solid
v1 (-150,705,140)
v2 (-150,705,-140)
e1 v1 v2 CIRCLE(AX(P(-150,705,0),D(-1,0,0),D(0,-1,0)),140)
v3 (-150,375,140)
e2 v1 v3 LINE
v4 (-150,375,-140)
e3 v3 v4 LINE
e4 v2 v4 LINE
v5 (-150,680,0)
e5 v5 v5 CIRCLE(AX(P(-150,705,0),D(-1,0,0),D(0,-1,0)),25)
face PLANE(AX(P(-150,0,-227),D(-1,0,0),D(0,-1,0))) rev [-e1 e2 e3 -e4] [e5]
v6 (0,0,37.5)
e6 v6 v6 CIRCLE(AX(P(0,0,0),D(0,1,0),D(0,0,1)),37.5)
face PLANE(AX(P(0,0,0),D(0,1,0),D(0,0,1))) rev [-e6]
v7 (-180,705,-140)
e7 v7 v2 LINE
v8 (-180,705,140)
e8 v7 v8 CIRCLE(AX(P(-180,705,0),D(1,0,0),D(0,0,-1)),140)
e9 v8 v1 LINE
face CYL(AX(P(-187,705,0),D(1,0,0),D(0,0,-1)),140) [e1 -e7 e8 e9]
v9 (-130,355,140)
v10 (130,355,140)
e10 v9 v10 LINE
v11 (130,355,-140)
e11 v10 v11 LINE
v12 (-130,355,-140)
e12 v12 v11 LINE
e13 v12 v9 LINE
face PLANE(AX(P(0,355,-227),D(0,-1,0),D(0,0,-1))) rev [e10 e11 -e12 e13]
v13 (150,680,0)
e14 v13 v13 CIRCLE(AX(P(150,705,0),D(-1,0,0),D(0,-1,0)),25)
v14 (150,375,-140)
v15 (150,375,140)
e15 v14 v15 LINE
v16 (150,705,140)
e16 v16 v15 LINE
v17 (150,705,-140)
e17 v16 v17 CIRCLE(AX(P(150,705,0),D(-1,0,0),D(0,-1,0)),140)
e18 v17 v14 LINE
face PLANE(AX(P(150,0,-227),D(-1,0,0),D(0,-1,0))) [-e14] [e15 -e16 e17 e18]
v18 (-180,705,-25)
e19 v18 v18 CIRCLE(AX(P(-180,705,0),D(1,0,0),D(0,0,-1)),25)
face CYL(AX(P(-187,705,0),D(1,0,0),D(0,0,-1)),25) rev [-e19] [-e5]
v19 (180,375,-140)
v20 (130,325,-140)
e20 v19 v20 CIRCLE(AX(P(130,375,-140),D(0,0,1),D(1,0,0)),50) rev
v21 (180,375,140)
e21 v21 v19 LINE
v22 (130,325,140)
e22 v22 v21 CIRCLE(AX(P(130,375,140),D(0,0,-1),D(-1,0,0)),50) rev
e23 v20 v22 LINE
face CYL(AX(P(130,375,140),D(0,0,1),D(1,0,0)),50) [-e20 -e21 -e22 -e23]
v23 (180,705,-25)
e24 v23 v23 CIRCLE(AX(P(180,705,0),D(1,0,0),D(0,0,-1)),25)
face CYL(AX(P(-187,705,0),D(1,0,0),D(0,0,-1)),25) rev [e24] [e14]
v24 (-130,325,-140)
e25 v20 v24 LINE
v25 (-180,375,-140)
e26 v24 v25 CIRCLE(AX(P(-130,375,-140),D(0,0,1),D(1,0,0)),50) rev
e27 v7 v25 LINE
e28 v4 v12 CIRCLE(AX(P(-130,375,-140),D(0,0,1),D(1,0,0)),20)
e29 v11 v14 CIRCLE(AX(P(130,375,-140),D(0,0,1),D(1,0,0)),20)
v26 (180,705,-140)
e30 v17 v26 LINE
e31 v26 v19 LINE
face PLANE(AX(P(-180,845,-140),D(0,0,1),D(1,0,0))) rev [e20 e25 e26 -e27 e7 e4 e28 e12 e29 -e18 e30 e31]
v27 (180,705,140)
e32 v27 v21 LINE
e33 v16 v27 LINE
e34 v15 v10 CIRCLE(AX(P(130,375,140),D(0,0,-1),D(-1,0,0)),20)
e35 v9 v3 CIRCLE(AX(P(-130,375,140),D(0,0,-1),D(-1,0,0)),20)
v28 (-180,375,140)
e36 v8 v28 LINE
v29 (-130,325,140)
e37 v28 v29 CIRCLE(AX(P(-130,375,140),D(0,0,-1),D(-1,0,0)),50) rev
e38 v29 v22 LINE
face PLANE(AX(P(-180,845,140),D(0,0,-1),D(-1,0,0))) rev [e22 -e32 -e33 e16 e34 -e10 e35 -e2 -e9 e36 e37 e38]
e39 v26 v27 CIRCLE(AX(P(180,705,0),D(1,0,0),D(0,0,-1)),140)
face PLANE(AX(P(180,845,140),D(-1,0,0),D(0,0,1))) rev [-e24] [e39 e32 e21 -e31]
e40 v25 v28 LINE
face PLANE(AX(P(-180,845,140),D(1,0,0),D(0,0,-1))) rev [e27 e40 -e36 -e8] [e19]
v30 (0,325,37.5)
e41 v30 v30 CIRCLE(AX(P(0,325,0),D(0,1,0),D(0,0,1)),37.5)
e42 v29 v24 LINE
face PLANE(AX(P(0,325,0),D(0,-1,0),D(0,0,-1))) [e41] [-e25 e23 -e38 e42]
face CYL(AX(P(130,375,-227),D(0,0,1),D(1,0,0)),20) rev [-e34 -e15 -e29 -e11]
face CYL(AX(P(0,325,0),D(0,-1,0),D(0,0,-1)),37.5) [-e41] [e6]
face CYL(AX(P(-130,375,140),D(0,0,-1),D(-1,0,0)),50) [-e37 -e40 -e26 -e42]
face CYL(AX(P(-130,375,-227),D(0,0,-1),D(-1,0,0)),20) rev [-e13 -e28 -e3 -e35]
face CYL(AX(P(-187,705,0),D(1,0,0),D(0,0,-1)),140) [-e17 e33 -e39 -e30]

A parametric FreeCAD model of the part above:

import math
import FreeCAD as App
import Part
import Sketcher


def edges_at(feature, points):
    """Names of the edges that pass closest to the given points."""
    edges = feature.Shape.Edges
    near = lambda p: min(range(len(edges)), key=lambda i: edges[i].distToShape(Part.Vertex(*p))[0])
    return sorted({f"Edge{near(p) + 1}" for p in points})


def add_polygon(sketch, points):
    """Adds a closed chain of lines whose ends are joined by coincident constraints."""
    first, n = sketch.GeometryCount, len(points)
    for a, b in zip(points, points[1:] + points[:1]):
        sketch.addGeometry(Part.LineSegment(App.Vector(*a, 0), App.Vector(*b, 0)), False)
    for i in range(n):
        sketch.addConstraint(Sketcher.Constraint("Coincident", first + i, 2, first + (i + 1) % n, 1))

doc = App.newDocument("Part")
params = doc.addObject("Spreadsheet::Sheet", "Params")
for row, (alias, value) in enumerate([
    ("sketch1_diameter", "75 mm"),
    ("pad1_length", "325 mm"),
    ("sketch2_width", "360 mm"),
    ("sketch2_height", "280 mm"),
    ("pad2_length", "520 mm"),
    ("sketch3_width", "300 mm"),
    ("sketch3_height", "490 mm"),
    ("pocket1_length", "367 mm"),
    ("fillet_radius", "20 mm"),
    ("fillet2_radius", "50 mm"),
    ("sketch4_diameter", "50 mm"),
    ("sketch4_radius", "140 mm"),
    ("pocket2_length", "367 mm"),
], start=1):
    params.set(f"A{row}", alias)
    params.set(f"B{row}", "=" + value)
    params.setAlias(f"B{row}", alias)

body = doc.addObject("PartDesign::Body", "Body")

# Sketch on XZ plane
sketch1 = body.newObject("Sketcher::SketchObject", "Sketch")
sketch1.AttachmentSupport = (doc.getObject("XZ_Plane"), [""])
sketch1.MapMode = "FlatFace"
sketch1.addGeometry(Part.Circle(App.Vector(0, 0, 0), App.Vector(0, 0, 1), 38), False)
sketch1.addConstraint([
    Sketcher.Constraint("Coincident", 0, 3, -1, 1),
    Sketcher.Constraint("Diameter", 0, 75.0),
])
sketch1.setExpression("Constraints[1]", "Params.sketch1_diameter")
pad1 = body.newObject("PartDesign::Pad", "Pad")
pad1.Profile = sketch1
pad1.setExpression("Length", "Params.pad1_length")
pad1.Reversed = True

# Sketch on XZ plane
sketch2 = body.newObject("Sketcher::SketchObject", "Sketch001")
sketch2.AttachmentSupport = (doc.getObject("XZ_Plane"), [""])
sketch2.MapMode = "FlatFace"
sketch2.AttachmentOffset = App.Placement(App.Vector(0, 0, -325), App.Rotation())
add_polygon(sketch2, [(-180, -140), (-180, 140), (180, 140), (180, -140)])  # lines 0-3
sketch2.addConstraint([
    Sketcher.Constraint("Vertical", 0),
    Sketcher.Constraint("Horizontal", 1),
    Sketcher.Constraint("Vertical", 2),
    Sketcher.Constraint("Horizontal", 3),
    Sketcher.Constraint("Symmetric", 0, 2, 2, 2, -1, 1),
    Sketcher.Constraint("DistanceX", 1, 1, 1, 2, 360.0),
    Sketcher.Constraint("DistanceY", 0, 1, 0, 2, 280.0),
])
sketch2.setExpression("Constraints[9]", "Params.sketch2_width")
sketch2.setExpression("Constraints[10]", "Params.sketch2_height")
pad2 = body.newObject("PartDesign::Pad", "Pad001")
pad2.Profile = sketch2
pad2.setExpression("Length", "Params.pad2_length")
pad2.Reversed = True

# Sketch on XY plane
sketch3 = body.newObject("Sketcher::SketchObject", "Sketch002")
sketch3.AttachmentSupport = (doc.getObject("XY_Plane"), [""])
sketch3.MapMode = "FlatFace"
sketch3.AttachmentOffset = App.Placement(App.Vector(0, 0, 140), App.Rotation())
add_polygon(sketch3, [(-150, 845), (-150, 355), (150, 355), (150, 845)])  # lines 0-3
sketch3.addConstraint([
    Sketcher.Constraint("Vertical", 0),
    Sketcher.Constraint("Horizontal", 1),
    Sketcher.Constraint("Vertical", 2),
    Sketcher.Constraint("Horizontal", 3),
    Sketcher.Constraint("DistanceX", 1, 1, 1, 2, 300.0),
    Sketcher.Constraint("DistanceY", 0, 2, 0, 1, 490.0),
    Sketcher.Constraint("DistanceX", 0, 2, -1, 1, 150.0),
    Sketcher.Constraint("DistanceY", -1, 1, 0, 2, 355.0),
])
sketch3.setExpression("Constraints[8]", "Params.sketch3_width")
sketch3.setExpression("Constraints[9]", "Params.sketch3_height")
pocket1 = body.newObject("PartDesign::Pocket", "Pocket")
pocket1.Profile = sketch3
pocket1.setExpression("Length", "Params.pocket1_length")
doc.recompute()

fillet = body.newObject("PartDesign::Fillet", "Fillet")
fillet.Base = (pocket1, edges_at(pocket1, [(150, 355, 0), (-150, 355, 0)]))
fillet.setExpression("Radius", "Params.fillet_radius")
doc.recompute()

fillet2 = body.newObject("PartDesign::Fillet", "Fillet001")
fillet2.Base = (fillet, edges_at(fillet, [(180, 325, 0), (-180, 325, 0)]))
fillet2.setExpression("Radius", "Params.fillet2_radius")

# Sketch on YZ plane
sketch4 = body.newObject("Sketcher::SketchObject", "Sketch003")
sketch4.AttachmentSupport = (doc.getObject("YZ_Plane"), [""])
sketch4.MapMode = "FlatFace"
sketch4.AttachmentOffset = App.Placement(App.Vector(0, 0, 180), App.Rotation())
sketch4.addGeometry([
    Part.LineSegment(App.Vector(845, 140, 0), App.Vector(705, 140, 0)),  # 0
    Part.ArcOfCircle(Part.Circle(App.Vector(705, 0, 0), App.Vector(0, 0, 1), 140), math.radians(0), math.radians(90)),  # 1
    Part.LineSegment(App.Vector(845, 0, 0), App.Vector(845, 140, 0)),  # 2
    Part.ArcOfCircle(Part.Circle(App.Vector(705, 0, 0), App.Vector(0, 0, 1), 140), math.radians(-90), math.radians(0)),  # 3
    Part.LineSegment(App.Vector(705, -140, 0), App.Vector(845, -140, 0)),  # 4
    Part.LineSegment(App.Vector(845, -140, 0), App.Vector(845, 0, 0)),  # 5
    Part.Circle(App.Vector(705, 0, 0), App.Vector(0, 0, 1), 25),  # 6
], False)
sketch4.addConstraint([
    Sketcher.Constraint("Tangent", 0, 2, 1, 2),
    Sketcher.Constraint("Tangent", 1, 1, 2, 1),
    Sketcher.Constraint("Coincident", 2, 2, 0, 1),
    Sketcher.Constraint("Tangent", 3, 1, 4, 1),
    Sketcher.Constraint("Coincident", 4, 2, 5, 1),
    Sketcher.Constraint("Tangent", 5, 2, 3, 2),
    Sketcher.Constraint("Horizontal", 0),
    Sketcher.Constraint("Vertical", 2),
    Sketcher.Constraint("Horizontal", 4),
    Sketcher.Constraint("Vertical", 5),
    Sketcher.Constraint("Coincident", 3, 3, 1, 3),
    Sketcher.Constraint("Coincident", 6, 3, 1, 3),
    Sketcher.Constraint("Equal", 1, 3),
    Sketcher.Constraint("PointOnObject", 1, 3, -1),
    Sketcher.Constraint("Diameter", 6, 50.0),
    Sketcher.Constraint("Radius", 1, 140.0),
    Sketcher.Constraint("DistanceX", -1, 1, 1, 3, 705.0),
])
sketch4.setExpression("Constraints[14]", "Params.sketch4_diameter")
sketch4.setExpression("Constraints[15]", "Params.sketch4_radius")
pocket2 = body.newObject("PartDesign::Pocket", "Pocket001")
pocket2.Profile = sketch4
pocket2.setExpression("Length", "Params.pocket2_length")

doc.recompute()
